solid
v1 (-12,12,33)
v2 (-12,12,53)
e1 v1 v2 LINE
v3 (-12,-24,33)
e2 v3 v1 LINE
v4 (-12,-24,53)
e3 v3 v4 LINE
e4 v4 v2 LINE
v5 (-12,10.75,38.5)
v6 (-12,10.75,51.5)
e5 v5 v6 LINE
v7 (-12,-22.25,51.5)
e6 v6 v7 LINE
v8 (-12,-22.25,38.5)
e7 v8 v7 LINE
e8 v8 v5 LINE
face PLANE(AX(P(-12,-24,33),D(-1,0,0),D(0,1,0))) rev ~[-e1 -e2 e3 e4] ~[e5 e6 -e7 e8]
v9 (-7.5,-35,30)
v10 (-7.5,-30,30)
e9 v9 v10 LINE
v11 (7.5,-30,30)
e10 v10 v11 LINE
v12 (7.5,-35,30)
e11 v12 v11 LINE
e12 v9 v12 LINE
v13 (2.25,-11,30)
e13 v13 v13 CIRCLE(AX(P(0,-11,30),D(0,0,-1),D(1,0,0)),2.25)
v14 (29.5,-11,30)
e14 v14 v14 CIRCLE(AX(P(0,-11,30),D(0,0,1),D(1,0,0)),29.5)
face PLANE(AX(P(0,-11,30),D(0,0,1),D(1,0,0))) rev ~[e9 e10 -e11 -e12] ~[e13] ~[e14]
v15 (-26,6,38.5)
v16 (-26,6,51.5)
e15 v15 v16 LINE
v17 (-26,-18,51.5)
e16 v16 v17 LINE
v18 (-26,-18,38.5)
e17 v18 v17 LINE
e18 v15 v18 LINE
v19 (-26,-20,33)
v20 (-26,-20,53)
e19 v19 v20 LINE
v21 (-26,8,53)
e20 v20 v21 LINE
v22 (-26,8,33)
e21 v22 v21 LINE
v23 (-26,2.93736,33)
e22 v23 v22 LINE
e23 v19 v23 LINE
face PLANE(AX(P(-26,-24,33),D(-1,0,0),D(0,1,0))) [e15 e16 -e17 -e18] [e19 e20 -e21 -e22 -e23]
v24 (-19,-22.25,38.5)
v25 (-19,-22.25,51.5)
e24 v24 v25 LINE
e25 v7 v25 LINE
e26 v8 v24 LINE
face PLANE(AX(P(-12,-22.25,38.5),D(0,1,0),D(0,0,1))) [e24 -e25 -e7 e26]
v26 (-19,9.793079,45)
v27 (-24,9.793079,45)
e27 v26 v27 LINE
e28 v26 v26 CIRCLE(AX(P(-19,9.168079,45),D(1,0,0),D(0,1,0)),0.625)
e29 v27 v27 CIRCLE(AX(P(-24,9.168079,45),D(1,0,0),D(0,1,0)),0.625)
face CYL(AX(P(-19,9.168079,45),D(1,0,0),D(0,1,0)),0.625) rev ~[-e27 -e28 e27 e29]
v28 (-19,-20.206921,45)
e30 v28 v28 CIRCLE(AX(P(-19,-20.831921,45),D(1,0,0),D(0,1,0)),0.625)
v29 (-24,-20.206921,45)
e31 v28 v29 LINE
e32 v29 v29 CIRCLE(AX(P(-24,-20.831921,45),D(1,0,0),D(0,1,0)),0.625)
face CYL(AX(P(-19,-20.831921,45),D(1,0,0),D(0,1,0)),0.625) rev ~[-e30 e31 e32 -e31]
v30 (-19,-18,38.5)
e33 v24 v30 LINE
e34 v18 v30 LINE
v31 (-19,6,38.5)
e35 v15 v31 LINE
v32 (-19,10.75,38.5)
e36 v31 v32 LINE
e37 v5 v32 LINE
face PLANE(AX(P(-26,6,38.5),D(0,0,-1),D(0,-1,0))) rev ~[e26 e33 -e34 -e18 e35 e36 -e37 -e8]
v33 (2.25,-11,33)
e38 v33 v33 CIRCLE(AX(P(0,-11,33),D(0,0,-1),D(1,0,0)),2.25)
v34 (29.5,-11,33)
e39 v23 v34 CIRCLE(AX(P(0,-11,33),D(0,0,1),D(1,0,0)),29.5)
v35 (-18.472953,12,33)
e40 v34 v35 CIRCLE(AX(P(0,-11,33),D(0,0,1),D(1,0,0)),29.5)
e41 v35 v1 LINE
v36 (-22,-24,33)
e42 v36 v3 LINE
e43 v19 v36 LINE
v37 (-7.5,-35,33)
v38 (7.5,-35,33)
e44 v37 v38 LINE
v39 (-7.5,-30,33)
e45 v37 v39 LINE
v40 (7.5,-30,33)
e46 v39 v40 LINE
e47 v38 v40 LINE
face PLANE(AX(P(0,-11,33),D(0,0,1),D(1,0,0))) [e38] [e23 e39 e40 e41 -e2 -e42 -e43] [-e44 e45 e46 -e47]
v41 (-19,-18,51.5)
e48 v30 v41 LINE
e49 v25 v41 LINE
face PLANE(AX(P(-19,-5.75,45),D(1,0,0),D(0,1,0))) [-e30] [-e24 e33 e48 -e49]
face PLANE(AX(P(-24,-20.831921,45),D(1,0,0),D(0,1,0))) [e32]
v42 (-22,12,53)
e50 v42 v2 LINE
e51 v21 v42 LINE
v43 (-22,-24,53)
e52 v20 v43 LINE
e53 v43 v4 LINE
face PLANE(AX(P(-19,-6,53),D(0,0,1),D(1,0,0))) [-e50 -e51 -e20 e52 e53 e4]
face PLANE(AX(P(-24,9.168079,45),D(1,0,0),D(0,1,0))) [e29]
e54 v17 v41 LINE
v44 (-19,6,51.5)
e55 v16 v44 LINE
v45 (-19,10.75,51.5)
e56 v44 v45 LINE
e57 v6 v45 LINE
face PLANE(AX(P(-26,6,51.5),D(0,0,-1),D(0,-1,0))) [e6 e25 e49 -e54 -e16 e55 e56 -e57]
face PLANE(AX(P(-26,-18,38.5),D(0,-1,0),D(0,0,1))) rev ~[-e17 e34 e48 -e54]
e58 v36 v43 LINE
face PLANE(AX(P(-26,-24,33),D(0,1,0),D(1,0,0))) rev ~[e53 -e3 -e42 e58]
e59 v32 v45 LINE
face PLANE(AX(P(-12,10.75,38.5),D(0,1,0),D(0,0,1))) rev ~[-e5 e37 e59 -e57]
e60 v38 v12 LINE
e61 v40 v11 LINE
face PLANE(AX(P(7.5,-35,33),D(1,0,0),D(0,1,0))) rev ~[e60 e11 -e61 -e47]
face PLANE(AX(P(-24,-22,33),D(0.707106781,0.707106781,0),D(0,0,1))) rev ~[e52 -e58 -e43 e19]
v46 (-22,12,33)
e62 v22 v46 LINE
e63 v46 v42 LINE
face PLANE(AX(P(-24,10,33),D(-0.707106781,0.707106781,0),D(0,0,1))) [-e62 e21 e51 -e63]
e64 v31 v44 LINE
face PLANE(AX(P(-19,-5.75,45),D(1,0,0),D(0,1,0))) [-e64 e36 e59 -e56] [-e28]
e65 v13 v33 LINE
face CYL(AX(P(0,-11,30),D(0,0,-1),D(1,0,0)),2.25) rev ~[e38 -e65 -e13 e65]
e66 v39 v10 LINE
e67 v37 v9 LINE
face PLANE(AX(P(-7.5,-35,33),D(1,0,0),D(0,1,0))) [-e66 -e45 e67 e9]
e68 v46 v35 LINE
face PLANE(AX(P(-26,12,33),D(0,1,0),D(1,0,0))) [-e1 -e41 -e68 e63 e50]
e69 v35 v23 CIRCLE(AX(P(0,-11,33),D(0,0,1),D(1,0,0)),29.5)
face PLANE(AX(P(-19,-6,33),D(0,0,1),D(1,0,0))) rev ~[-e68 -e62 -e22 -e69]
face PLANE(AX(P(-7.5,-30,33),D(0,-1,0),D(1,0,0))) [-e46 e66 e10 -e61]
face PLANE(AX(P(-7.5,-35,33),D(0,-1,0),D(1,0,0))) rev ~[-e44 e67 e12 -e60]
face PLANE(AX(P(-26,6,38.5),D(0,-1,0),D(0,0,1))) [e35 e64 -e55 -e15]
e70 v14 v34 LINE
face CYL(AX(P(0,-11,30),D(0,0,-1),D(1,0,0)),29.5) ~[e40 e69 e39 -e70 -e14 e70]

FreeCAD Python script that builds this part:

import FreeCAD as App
import Part
import Sketcher

V = App.Vector


def edges_at(feature, points):
    """Names of the edges that pass closest to the given points."""
    edges = feature.Shape.Edges
    near = lambda p: min(range(len(edges)), key=lambda i: edges[i].distToShape(Part.Vertex(*p))[0])
    return sorted({f"Edge{near(p) + 1}" for p in points})


def add_polygon(sketch, points):
    """Adds a closed chain of lines whose ends are joined by coincident constraints."""
    first, n = sketch.GeometryCount, len(points)
    for a, b in zip(points, points[1:] + points[:1]):
        sketch.addGeometry(Part.LineSegment(App.Vector(*a, 0), App.Vector(*b, 0)), False)
    for i in range(n):
        sketch.addConstraint(Sketcher.Constraint("Coincident", first + i, 2, first + (i + 1) % n, 1))

doc = App.newDocument("Part")
body = doc.addObject("PartDesign::Body", "Body")

# Sketch on XY plane
sketch1 = body.newObject("Sketcher::SketchObject", "Sketch")
sketch1.AttachmentSupport = (doc.getObject("XY_Plane"), [""])
sketch1.MapMode = "FlatFace"
sketch1.addGeometry(Part.Circle(V(0, -11, 0), V(0, 0, 1), 30), False)
sketch1.addConstraint(Sketcher.Constraint("PointOnObject", 0, 3, -2))
sketch1.addConstraint(Sketcher.Constraint("Diameter", 0, 59.0))
sketch1.addConstraint(Sketcher.Constraint("DistanceY", 0, 3, -1, 1, 11.0))
pad1 = body.newObject("PartDesign::Pad", "Pad")
pad1.Profile = sketch1
pad1.Length = 3

# Sketch on XY plane
sketch2 = body.newObject("Sketcher::SketchObject", "Sketch001")
sketch2.AttachmentSupport = (doc.getObject("XY_Plane"), [""])
sketch2.MapMode = "FlatFace"
sketch2.addGeometry(Part.Circle(V(0, -11, 0), V(0, 0, 1), 2.2), False)
sketch2.addConstraint(Sketcher.Constraint("PointOnObject", 0, 3, -2))
sketch2.addConstraint(Sketcher.Constraint("Diameter", 0, 4.5))
sketch2.addConstraint(Sketcher.Constraint("DistanceY", 0, 3, -1, 1, 11.0))
pocket1 = body.newObject("PartDesign::Pocket", "Pocket")
pocket1.Profile = sketch2
pocket1.Length = 3
pocket1.Reversed = True

# Sketch on XY plane
sketch3 = body.newObject("Sketcher::SketchObject", "Sketch002")
sketch3.AttachmentSupport = (doc.getObject("XY_Plane"), [""])
sketch3.MapMode = "FlatFace"
sketch3.AttachmentOffset = App.Placement(V(0, 0, 3), App.Rotation())
add_polygon(sketch3, [(-8, -30), (-8, -35), (8, -35), (8, -30)])  # lines 0-3
sketch3.addConstraint(Sketcher.Constraint("Vertical", 0))
sketch3.addConstraint(Sketcher.Constraint("Horizontal", 1))
sketch3.addConstraint(Sketcher.Constraint("Vertical", 2))
sketch3.addConstraint(Sketcher.Constraint("Horizontal", 3))
sketch3.addConstraint(Sketcher.Constraint("DistanceX", 1, 1, 1, 2, 15.0))
sketch3.addConstraint(Sketcher.Constraint("DistanceY", 0, 2, 0, 1, 5.0))
sketch3.addConstraint(Sketcher.Constraint("DistanceY", 0, 2, -1, 1, 35.0))
sketch3.addConstraint(Sketcher.Constraint("DistanceX", 0, 2, -1, 1, 7.5))
pocket2 = body.newObject("PartDesign::Pocket", "Pocket001")
pocket2.Profile = sketch3
pocket2.Length = 5

# Sketch on XY plane
sketch4 = body.newObject("Sketcher::SketchObject", "Sketch003")
sketch4.AttachmentSupport = (doc.getObject("XY_Plane"), [""])
sketch4.MapMode = "FlatFace"
sketch4.AttachmentOffset = App.Placement(V(0, 0, 3), App.Rotation())
add_polygon(sketch4, [(-26, 12), (-26, -24), (-12, -24), (-12, 12)])  # lines 0-3
sketch4.addConstraint(Sketcher.Constraint("Vertical", 0))
sketch4.addConstraint(Sketcher.Constraint("Horizontal", 1))
sketch4.addConstraint(Sketcher.Constraint("Vertical", 2))
sketch4.addConstraint(Sketcher.Constraint("Horizontal", 3))
sketch4.addConstraint(Sketcher.Constraint("DistanceX", 1, 1, 1, 2, 14.0))
sketch4.addConstraint(Sketcher.Constraint("DistanceY", 0, 2, 0, 1, 36.0))
sketch4.addConstraint(Sketcher.Constraint("DistanceX", 0, 2, -1, 1, 26.0))
sketch4.addConstraint(Sketcher.Constraint("DistanceY", 0, 2, -1, 1, 24.0))
pad2 = body.newObject("PartDesign::Pad", "Pad001")
pad2.Profile = sketch4
pad2.Length = 20

# Sketch on YZ plane
sketch5 = body.newObject("Sketcher::SketchObject", "Sketch004")
sketch5.AttachmentSupport = (doc.getObject("YZ_Plane"), [""])
sketch5.MapMode = "FlatFace"
sketch5.AttachmentOffset = App.Placement(V(0, 0, -26), App.Rotation())
add_polygon(sketch5, [(6, 22), (6, 8), (-18, 8), (-18, 22)])  # lines 0-3
sketch5.addConstraint(Sketcher.Constraint("Vertical", 0))
sketch5.addConstraint(Sketcher.Constraint("Horizontal", 1))
sketch5.addConstraint(Sketcher.Constraint("Vertical", 2))
sketch5.addConstraint(Sketcher.Constraint("Horizontal", 3))
sketch5.addConstraint(Sketcher.Constraint("DistanceX", 1, 2, 1, 1, 24.0))
sketch5.addConstraint(Sketcher.Constraint("DistanceY", 0, 2, 0, 1, 13.0))
sketch5.addConstraint(Sketcher.Constraint("DistanceX", -1, 1, 0, 2, 6.0))
sketch5.addConstraint(Sketcher.Constraint("DistanceY", -1, 1, 0, 2, 8.5))
pocket3 = body.newObject("PartDesign::Pocket", "Pocket002")
pocket3.Profile = sketch5
pocket3.Length = 14
pocket3.Reversed = True

# Sketch on YZ plane
sketch6 = body.newObject("Sketcher::SketchObject", "Sketch005")
sketch6.AttachmentSupport = (doc.getObject("YZ_Plane"), [""])
sketch6.MapMode = "FlatFace"
sketch6.AttachmentOffset = App.Placement(V(0, 0, -12), App.Rotation())
add_polygon(sketch6, [(-22, 22), (-22, 8), (11, 8), (11, 22)])  # lines 0-3
sketch6.addConstraint(Sketcher.Constraint("Vertical", 0))
sketch6.addConstraint(Sketcher.Constraint("Horizontal", 1))
sketch6.addConstraint(Sketcher.Constraint("Vertical", 2))
sketch6.addConstraint(Sketcher.Constraint("Horizontal", 3))
sketch6.addConstraint(Sketcher.Constraint("DistanceX", 1, 1, 1, 2, 33.0))
sketch6.addConstraint(Sketcher.Constraint("DistanceY", 0, 2, 0, 1, 13.0))
sketch6.addConstraint(Sketcher.Constraint("DistanceY", -1, 1, 0, 2, 8.5))
sketch6.addConstraint(Sketcher.Constraint("DistanceX", 0, 2, -1, 1, 22.25))
pocket4 = body.newObject("PartDesign::Pocket", "Pocket003")
pocket4.Profile = sketch6
pocket4.Length = 7

# Sketch on YZ plane
sketch7 = body.newObject("Sketcher::SketchObject", "Sketch006")
sketch7.AttachmentSupport = (doc.getObject("YZ_Plane"), [""])
sketch7.MapMode = "FlatFace"
sketch7.AttachmentOffset = App.Placement(V(0, 0, -19), App.Rotation())
sketch7.addGeometry(Part.Circle(V(-20.8, 15, 0), V(0, 0, 1), 0.6), False)
sketch7.addGeometry(Part.Circle(V(9.2, 15, 0), V(0, 0, 1), 0.6), False)
sketch7.addConstraint(Sketcher.Constraint("Equal", 0, 1))
sketch7.addConstraint(Sketcher.Constraint("Horizontal", 0, 3, 1, 3))
sketch7.addConstraint(Sketcher.Constraint("Diameter", 0, 1.25))
sketch7.addConstraint(Sketcher.Constraint("DistanceY", -1, 1, 0, 3, 15.0))
sketch7.addConstraint(Sketcher.Constraint("DistanceX", 0, 3, 1, 3, 30.0))
sketch7.addConstraint(Sketcher.Constraint("DistanceX", 0, 3, -1, 1, 20.831921))
pocket5 = body.newObject("PartDesign::Pocket", "Pocket004")
pocket5.Profile = sketch7
pocket5.Length = 5
doc.recompute()

chamfer = body.newObject("PartDesign::Chamfer", "Chamfer")
chamfer.Base = (pocket5, edges_at(pocket5, [(-26, 12, 13), (-26, -24, 13)]))
chamfer.Size = 4
body2 = doc.addObject("PartDesign::Body", "Body001")
doc.recompute()

body.Placement = App.Placement(V(0, 0, 30), App.Rotation(V(0, 0, 1), 0))
boolean = body2.newObject("PartDesign::Boolean", "Boolean")
boolean.Type = "Fuse"
boolean.addObjects([body])

doc.recompute()
